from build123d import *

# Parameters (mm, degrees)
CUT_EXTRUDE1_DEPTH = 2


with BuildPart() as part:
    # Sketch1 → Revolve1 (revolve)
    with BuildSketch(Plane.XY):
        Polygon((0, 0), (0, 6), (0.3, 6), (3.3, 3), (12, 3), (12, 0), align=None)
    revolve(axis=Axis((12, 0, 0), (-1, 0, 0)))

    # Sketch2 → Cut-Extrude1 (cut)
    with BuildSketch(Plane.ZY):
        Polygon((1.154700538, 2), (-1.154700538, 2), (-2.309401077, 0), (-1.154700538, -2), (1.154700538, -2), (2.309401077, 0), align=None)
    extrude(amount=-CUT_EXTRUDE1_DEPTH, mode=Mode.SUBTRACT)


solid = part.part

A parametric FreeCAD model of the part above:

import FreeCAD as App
import Part
import Sketcher
Q = App.Units.Quantity

doc = App.newDocument("Part")
body = doc.addObject("PartDesign::Body", "Body")

sketch1 = body.newObject("Sketcher::SketchObject", "Sketch")
sketch1.AttachmentSupport = (doc.getObject("XY_Plane"), [""])
sketch1.MapMode = "FlatFace"
sketch1.addGeometry([
    Part.LineSegment(App.Vector(0, 6, 0), App.Vector(0, 0, 0)),
    Part.LineSegment(App.Vector(0, 0, 0), App.Vector(12, 0, 0)),
    Part.LineSegment(App.Vector(12, 0, 0), App.Vector(12, 3, 0)),
    Part.LineSegment(App.Vector(12, 3, 0), App.Vector(3.3, 3, 0)),
    Part.LineSegment(App.Vector(3.3, 3, 0), App.Vector(0.3, 6, 0)),
    Part.LineSegment(App.Vector(0.3, 6, 0), App.Vector(0, 6, 0)),
], False)
sketch1.addConstraint([
    Sketcher.Constraint("Coincident", 0, 2, 1, 1),
    Sketcher.Constraint("Coincident", 1, 2, 2, 1),
    Sketcher.Constraint("Coincident", 2, 2, 3, 1),
    Sketcher.Constraint("Coincident", 3, 2, 4, 1),
    Sketcher.Constraint("Coincident", 4, 2, 5, 1),
    Sketcher.Constraint("Coincident", 5, 2, 0, 1),
    Sketcher.Constraint("Vertical", 0),
    Sketcher.Constraint("Horizontal", 1),
    Sketcher.Constraint("Vertical", 2),
    Sketcher.Constraint("Horizontal", 3),
    Sketcher.Constraint("Horizontal", 5),
    Sketcher.Constraint("Coincident", 0, 2, -1, 1),
    Sketcher.Constraint("DistanceX", 1, 1, 1, 2, 12.0),
    Sketcher.Constraint("DistanceY", 0, 2, 0, 1, 6.0),
    Sketcher.Constraint("DistanceY", 2, 1, 2, 2, 3.0),
    Sketcher.Constraint("Angle", 4, Q("135 deg")),
    Sketcher.Constraint("DistanceX", 3, 2, 3, 1, 8.7),
])
revolution = body.newObject("PartDesign::Revolution", "Revolution")
revolution.Profile = sketch1
revolution.ReferenceAxis = (sketch1, ["H_Axis"])
revolution.Angle = 360

sketch2 = body.newObject("Sketcher::SketchObject", "Sketch001")
sketch2.AttachmentSupport = (doc.getObject("YZ_Plane"), [""])
sketch2.MapMode = "FlatFace"
sketch2.addGeometry([
    Part.LineSegment(App.Vector(2, 1.2, 0), App.Vector(2, -1.2, 0)),
    Part.LineSegment(App.Vector(2, -1.2, 0), App.Vector(0, -2.3, 0)),
    Part.LineSegment(App.Vector(0, -2.3, 0), App.Vector(-2, -1.2, 0)),
    Part.LineSegment(App.Vector(-2, -1.2, 0), App.Vector(-2, 1.2, 0)),
    Part.LineSegment(App.Vector(-2, 1.2, 0), App.Vector(0, 2.3, 0)),
    Part.LineSegment(App.Vector(0, 2.3, 0), App.Vector(2, 1.2, 0)),
], False)
sketch2.addConstraint([
    Sketcher.Constraint("Coincident", 0, 2, 1, 1),
    Sketcher.Constraint("Coincident", 1, 2, 2, 1),
    Sketcher.Constraint("Coincident", 2, 2, 3, 1),
    Sketcher.Constraint("Coincident", 3, 2, 4, 1),
    Sketcher.Constraint("Coincident", 4, 2, 5, 1),
    Sketcher.Constraint("Coincident", 5, 2, 0, 1),
    Sketcher.Constraint("Vertical", 0),
    Sketcher.Constraint("Vertical", 3),
    Sketcher.Constraint("Symmetric", 0, 2, 3, 2, -1, 1),
    Sketcher.Constraint("Symmetric", 1, 2, 4, 2, -1, 1),
    Sketcher.Constraint("PointOnObject", 1, 2, -2),
    Sketcher.Constraint("Parallel", 2, 5),
    Sketcher.Constraint("Horizontal", 0, 2, 2, 2),
    Sketcher.Constraint("Angle", 1, Q("-150 deg")),
    Sketcher.Constraint("DistanceX", -1, 1, 0, 2, 2.0),
    Sketcher.Constraint("DistanceY", 0, 2, 0, 1, 2.309401),
])
pocket1 = body.newObject("PartDesign::Pocket", "Pocket")
pocket1.Profile = sketch2
pocket1.Length = 2
pocket1.Reversed = True

doc.recompute()
